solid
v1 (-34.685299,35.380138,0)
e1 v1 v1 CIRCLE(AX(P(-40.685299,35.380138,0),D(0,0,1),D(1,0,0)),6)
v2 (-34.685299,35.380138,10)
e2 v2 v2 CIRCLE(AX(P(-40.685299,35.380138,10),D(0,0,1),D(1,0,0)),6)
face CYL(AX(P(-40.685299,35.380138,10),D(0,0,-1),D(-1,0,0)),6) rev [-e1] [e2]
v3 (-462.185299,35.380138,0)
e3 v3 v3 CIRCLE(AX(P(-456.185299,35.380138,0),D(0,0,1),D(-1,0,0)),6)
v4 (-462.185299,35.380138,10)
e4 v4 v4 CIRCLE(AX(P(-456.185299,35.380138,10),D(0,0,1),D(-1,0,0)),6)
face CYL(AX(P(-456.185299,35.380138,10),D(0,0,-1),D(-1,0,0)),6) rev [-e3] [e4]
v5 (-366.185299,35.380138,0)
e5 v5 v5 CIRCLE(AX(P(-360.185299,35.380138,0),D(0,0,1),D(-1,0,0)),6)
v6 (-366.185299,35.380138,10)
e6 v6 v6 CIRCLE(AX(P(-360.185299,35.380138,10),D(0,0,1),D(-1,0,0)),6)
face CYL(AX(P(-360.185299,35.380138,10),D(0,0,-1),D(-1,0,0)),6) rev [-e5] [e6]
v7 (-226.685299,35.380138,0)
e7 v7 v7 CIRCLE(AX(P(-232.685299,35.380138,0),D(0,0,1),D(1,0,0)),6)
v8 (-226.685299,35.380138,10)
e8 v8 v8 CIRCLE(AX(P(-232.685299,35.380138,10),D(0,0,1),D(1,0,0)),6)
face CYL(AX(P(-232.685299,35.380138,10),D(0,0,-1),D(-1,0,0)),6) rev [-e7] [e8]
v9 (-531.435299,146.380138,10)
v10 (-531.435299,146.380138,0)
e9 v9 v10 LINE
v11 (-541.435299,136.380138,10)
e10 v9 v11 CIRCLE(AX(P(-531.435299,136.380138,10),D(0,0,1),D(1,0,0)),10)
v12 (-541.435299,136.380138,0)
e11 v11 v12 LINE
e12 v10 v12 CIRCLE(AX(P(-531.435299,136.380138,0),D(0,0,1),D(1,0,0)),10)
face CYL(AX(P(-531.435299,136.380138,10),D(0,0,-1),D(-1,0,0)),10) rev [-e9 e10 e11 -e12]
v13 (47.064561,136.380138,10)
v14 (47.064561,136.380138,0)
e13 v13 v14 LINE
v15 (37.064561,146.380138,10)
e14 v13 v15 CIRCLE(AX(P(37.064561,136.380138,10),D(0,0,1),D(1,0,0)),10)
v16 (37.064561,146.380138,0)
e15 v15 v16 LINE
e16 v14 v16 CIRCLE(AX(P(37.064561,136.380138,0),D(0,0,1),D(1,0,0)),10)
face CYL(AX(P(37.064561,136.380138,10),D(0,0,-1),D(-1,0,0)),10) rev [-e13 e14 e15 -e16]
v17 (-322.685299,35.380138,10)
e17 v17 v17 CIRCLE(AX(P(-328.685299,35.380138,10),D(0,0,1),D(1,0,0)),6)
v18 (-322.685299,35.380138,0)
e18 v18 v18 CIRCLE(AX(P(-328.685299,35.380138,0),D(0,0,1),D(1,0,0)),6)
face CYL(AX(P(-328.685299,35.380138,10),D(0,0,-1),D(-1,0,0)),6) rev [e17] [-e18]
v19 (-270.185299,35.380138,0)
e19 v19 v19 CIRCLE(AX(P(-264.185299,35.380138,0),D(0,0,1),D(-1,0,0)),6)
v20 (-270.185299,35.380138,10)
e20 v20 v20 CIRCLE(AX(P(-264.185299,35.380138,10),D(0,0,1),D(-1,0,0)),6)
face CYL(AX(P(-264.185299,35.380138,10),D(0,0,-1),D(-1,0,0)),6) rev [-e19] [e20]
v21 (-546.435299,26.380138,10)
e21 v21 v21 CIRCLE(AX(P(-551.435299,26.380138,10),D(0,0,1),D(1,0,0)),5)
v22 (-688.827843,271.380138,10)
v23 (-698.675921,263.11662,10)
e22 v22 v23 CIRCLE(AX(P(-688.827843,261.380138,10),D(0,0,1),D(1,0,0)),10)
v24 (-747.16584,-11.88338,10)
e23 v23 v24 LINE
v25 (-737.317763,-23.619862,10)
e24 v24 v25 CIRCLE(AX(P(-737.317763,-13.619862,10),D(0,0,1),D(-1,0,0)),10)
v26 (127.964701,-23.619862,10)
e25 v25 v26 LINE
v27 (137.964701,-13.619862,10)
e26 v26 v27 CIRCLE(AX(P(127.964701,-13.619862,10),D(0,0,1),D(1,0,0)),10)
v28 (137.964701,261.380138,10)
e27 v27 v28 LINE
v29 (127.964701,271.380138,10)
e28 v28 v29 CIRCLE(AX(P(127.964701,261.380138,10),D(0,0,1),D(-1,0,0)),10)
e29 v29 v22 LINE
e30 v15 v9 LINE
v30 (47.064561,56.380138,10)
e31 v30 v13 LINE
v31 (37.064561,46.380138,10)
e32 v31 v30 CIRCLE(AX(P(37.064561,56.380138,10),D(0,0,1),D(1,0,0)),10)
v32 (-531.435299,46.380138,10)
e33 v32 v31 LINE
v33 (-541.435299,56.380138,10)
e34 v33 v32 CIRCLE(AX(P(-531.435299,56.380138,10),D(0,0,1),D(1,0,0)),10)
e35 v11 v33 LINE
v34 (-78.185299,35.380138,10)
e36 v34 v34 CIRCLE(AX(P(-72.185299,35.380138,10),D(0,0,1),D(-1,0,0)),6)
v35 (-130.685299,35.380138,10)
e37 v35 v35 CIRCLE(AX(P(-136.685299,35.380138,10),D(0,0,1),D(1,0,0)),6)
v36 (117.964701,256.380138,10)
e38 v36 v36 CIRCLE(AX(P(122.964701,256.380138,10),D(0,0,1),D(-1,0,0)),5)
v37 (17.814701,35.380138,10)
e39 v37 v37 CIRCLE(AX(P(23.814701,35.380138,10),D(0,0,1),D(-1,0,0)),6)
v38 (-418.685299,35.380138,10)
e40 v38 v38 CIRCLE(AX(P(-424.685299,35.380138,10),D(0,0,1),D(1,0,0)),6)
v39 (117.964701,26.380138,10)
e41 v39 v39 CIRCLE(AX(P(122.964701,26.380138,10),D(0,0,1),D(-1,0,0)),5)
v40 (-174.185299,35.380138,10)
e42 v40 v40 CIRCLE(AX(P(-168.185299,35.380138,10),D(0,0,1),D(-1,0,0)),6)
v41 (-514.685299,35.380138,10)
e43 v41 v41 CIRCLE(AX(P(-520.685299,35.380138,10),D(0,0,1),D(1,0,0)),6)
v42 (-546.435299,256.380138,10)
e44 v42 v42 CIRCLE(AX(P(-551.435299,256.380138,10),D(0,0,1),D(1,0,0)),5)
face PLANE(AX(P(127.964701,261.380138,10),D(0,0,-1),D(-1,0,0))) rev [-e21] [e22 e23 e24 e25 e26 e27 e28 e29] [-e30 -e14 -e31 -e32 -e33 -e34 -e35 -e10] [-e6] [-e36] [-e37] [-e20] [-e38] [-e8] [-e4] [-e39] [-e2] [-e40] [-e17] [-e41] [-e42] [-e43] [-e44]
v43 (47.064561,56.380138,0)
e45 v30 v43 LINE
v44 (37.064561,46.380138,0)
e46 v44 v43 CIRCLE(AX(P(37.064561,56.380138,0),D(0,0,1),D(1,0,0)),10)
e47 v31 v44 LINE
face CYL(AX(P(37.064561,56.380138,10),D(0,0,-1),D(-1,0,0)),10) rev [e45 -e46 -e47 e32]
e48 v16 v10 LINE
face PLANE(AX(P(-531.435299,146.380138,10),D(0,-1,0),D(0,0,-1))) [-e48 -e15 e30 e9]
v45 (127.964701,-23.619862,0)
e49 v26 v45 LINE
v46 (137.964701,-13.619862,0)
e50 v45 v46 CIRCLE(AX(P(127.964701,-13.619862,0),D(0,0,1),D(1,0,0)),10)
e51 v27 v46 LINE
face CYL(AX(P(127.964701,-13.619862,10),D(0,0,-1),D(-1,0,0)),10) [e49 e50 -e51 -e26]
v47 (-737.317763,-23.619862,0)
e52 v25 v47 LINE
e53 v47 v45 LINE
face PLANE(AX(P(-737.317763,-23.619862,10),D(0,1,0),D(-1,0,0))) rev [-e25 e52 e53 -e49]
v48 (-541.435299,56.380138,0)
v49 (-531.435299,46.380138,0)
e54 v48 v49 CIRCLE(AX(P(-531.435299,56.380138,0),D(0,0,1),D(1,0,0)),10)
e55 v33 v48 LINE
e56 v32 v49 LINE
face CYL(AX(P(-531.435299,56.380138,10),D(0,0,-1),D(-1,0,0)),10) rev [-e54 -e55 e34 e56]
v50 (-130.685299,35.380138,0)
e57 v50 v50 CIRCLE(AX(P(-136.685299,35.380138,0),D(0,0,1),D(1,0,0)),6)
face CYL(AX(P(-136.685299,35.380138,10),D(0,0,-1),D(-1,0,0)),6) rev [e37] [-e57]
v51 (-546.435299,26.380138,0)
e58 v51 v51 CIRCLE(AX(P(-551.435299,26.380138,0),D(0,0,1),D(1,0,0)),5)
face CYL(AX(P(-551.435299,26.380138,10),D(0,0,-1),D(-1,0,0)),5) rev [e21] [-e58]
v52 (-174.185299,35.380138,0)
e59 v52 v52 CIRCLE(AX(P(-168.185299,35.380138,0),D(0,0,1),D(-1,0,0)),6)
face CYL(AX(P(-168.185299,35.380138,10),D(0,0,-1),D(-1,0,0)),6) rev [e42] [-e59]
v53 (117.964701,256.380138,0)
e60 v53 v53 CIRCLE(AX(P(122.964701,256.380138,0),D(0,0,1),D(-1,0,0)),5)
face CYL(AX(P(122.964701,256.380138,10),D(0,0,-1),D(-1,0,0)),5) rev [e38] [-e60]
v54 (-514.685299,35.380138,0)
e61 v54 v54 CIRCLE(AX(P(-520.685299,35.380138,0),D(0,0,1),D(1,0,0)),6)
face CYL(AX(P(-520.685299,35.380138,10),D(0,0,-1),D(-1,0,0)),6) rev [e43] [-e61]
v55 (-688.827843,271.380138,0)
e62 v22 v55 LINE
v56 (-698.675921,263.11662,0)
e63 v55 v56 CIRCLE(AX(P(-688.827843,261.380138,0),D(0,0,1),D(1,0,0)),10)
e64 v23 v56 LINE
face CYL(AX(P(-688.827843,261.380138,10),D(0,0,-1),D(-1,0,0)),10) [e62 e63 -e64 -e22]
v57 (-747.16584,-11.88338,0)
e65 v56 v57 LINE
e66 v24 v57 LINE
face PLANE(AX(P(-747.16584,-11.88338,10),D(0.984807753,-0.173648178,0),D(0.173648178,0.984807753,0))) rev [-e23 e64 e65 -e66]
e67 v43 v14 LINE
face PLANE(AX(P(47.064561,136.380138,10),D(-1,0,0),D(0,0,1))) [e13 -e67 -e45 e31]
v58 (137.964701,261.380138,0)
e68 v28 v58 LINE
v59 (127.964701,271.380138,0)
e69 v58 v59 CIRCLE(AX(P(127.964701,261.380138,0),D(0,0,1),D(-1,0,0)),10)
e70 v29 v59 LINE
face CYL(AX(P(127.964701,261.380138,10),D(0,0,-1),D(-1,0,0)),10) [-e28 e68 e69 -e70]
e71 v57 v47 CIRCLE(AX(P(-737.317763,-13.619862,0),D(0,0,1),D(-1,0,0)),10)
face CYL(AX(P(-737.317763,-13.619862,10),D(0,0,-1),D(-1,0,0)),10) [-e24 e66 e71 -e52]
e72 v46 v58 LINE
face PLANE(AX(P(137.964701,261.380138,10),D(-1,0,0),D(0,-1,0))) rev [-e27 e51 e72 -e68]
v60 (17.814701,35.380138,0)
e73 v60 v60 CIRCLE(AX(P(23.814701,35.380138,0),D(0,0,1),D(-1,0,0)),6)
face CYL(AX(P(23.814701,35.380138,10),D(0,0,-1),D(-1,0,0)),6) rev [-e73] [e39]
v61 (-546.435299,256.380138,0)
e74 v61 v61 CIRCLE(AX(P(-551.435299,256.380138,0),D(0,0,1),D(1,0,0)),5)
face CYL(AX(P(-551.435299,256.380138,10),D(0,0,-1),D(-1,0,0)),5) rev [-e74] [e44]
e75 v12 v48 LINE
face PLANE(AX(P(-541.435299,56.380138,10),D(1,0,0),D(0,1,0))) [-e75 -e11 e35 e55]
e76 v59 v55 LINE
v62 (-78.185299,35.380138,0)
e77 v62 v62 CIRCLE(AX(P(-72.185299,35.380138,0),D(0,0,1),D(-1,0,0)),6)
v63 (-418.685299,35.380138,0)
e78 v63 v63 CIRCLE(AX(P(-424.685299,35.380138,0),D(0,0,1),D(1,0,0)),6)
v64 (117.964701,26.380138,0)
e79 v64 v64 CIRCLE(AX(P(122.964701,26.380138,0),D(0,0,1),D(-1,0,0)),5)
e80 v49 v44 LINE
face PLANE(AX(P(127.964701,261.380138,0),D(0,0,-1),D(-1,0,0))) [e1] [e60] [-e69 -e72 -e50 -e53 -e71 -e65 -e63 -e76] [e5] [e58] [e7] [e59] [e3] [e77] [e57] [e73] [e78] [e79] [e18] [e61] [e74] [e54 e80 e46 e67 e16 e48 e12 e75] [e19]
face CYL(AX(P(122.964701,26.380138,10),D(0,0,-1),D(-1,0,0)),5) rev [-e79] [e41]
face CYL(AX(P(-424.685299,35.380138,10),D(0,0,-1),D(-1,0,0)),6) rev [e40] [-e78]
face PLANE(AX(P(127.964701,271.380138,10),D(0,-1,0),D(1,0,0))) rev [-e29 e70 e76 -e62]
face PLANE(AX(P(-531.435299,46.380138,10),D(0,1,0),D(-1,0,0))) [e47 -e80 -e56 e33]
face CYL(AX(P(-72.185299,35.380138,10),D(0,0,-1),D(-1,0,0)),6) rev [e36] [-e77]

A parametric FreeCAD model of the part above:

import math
import FreeCAD as App
import Part
import Sketcher

V = App.Vector
Q = App.Units.Quantity

doc = App.newDocument("Part")
body = doc.addObject("PartDesign::Body", "Body")

# Sketch on XY plane
sketch1 = body.newObject("Sketcher::SketchObject", "Sketch")
sketch1.AttachmentSupport = (doc.getObject("XY_Plane"), [""])
sketch1.MapMode = "FlatFace"
sketch1.addGeometry(Part.LineSegment(V(-737.317763, -23.619862, 0), V(127.964701, -23.619862, 0)), False)
sketch1.addGeometry(Part.ArcOfCircle(Part.Circle(V(127.964701, -13.619862, 0), V(0, 0, 1), 10), math.radians(-90), math.radians(0)), False)
sketch1.addGeometry(Part.LineSegment(V(137.964701, -13.619862, 0), V(137.964701, 261.380138, 0)), False)
sketch1.addGeometry(Part.ArcOfCircle(Part.Circle(V(127.964701, 261.380138, 0), V(0, 0, 1), 10), math.radians(0), math.radians(90)), False)
sketch1.addGeometry(Part.LineSegment(V(127.964701, 271.380138, 0), V(-688.827843, 271.380138, 0)), False)
sketch1.addGeometry(Part.ArcOfCircle(Part.Circle(V(-688.827843, 261.380138, 0), V(0, 0, 1), 10), math.radians(90), math.radians(170)), False)
sketch1.addGeometry(Part.LineSegment(V(-698.675921, 263.11662, 0), V(-747.16584, -11.88338, 0)), False)
sketch1.addGeometry(Part.ArcOfCircle(Part.Circle(V(-737.317763, -13.619862, 0), V(0, 0, 1), 10), math.radians(170), math.radians(270)), False)
sketch1.addGeometry(Part.Circle(V(-551.435299, 26.380138, 0), V(0, 0, 1), 5), False)
sketch1.addGeometry(Part.Circle(V(-520.685299, 35.380138, 0), V(0, 0, 1), 6), False)
sketch1.addGeometry(Part.Circle(V(-456.185299, 35.380138, 0), V(0, 0, 1), 6), False)
sketch1.addGeometry(Part.Circle(V(-424.685299, 35.380138, 0), V(0, 0, 1), 6), False)
sketch1.addGeometry(Part.Circle(V(-360.185299, 35.380138, 0), V(0, 0, 1), 6), False)
sketch1.addGeometry(Part.Circle(V(-328.685299, 35.380138, 0), V(0, 0, 1), 6), False)
sketch1.addGeometry(Part.Circle(V(-264.185299, 35.380138, 0), V(0, 0, 1), 6), False)
sketch1.addGeometry(Part.Circle(V(-232.685299, 35.380138, 0), V(0, 0, 1), 6), False)
sketch1.addGeometry(Part.LineSegment(V(37.064561, 46.380138, 0), V(-531.435299, 46.380138, 0)), False)
sketch1.addGeometry(Part.ArcOfCircle(Part.Circle(V(-531.435299, 56.380138, 0), V(0, 0, 1), 10), math.radians(180), math.radians(270)), False)
sketch1.addGeometry(Part.LineSegment(V(-541.435299, 56.380138, 0), V(-541.435299, 136.380138, 0)), False)
sketch1.addGeometry(Part.ArcOfCircle(Part.Circle(V(-531.435299, 136.380138, 0), V(0, 0, 1), 10), math.radians(90), math.radians(180)), False)
sketch1.addGeometry(Part.LineSegment(V(-531.435299, 146.380138, 0), V(37.064561, 146.380138, 0)), False)
sketch1.addGeometry(Part.ArcOfCircle(Part.Circle(V(37.064561, 136.380138, 0), V(0, 0, 1), 10), math.radians(0), math.radians(90)), False)
sketch1.addGeometry(Part.LineSegment(V(47.064561, 136.380138, 0), V(47.064561, 56.380138, 0)), False)
sketch1.addGeometry(Part.ArcOfCircle(Part.Circle(V(37.064561, 56.380138, 0), V(0, 0, 1), 10), math.radians(-90), math.radians(0)), False)
sketch1.addGeometry(Part.Circle(V(-168.185299, 35.380138, 0), V(0, 0, 1), 6), False)
sketch1.addGeometry(Part.Circle(V(-136.685299, 35.380138, 0), V(0, 0, 1), 6), False)
sketch1.addGeometry(Part.Circle(V(-72.185299, 35.380138, 0), V(0, 0, 1), 6), False)
sketch1.addGeometry(Part.Circle(V(-40.685299, 35.380138, 0), V(0, 0, 1), 6), False)
sketch1.addGeometry(Part.Circle(V(23.814701, 35.380138, 0), V(0, 0, 1), 6), False)
sketch1.addGeometry(Part.Circle(V(122.964701, 26.380138, 0), V(0, 0, 1), 5), False)
sketch1.addGeometry(Part.Circle(V(-551.435299, 256.380138, 0), V(0, 0, 1), 5), False)
sketch1.addGeometry(Part.Circle(V(122.964701, 256.380138, 0), V(0, 0, 1), 5), False)
sketch1.addConstraint(Sketcher.Constraint("Tangent", 0, 2, 1, 1))
sketch1.addConstraint(Sketcher.Constraint("Tangent", 1, 2, 2, 1))
sketch1.addConstraint(Sketcher.Constraint("Tangent", 2, 2, 3, 1))
sketch1.addConstraint(Sketcher.Constraint("Tangent", 3, 2, 4, 1))
sketch1.addConstraint(Sketcher.Constraint("Tangent", 4, 2, 5, 1))
sketch1.addConstraint(Sketcher.Constraint("Tangent", 5, 2, 6, 1))
sketch1.addConstraint(Sketcher.Constraint("Tangent", 6, 2, 7, 1))
sketch1.addConstraint(Sketcher.Constraint("Tangent", 7, 2, 0, 1))
sketch1.addConstraint(Sketcher.Constraint("Tangent", 16, 2, 17, 2))
sketch1.addConstraint(Sketcher.Constraint("Tangent", 17, 1, 18, 1))
sketch1.addConstraint(Sketcher.Constraint("Tangent", 18, 2, 19, 2))
sketch1.addConstraint(Sketcher.Constraint("Tangent", 19, 1, 20, 1))
sketch1.addConstraint(Sketcher.Constraint("Tangent", 20, 2, 21, 2))
sketch1.addConstraint(Sketcher.Constraint("Tangent", 21, 1, 22, 1))
sketch1.addConstraint(Sketcher.Constraint("Tangent", 22, 2, 23, 2))
sketch1.addConstraint(Sketcher.Constraint("Tangent", 23, 1, 16, 1))
sketch1.addConstraint(Sketcher.Constraint("Horizontal", 0))
sketch1.addConstraint(Sketcher.Constraint("Vertical", 2))
sketch1.addConstraint(Sketcher.Constraint("Horizontal", 4))
sketch1.addConstraint(Sketcher.Constraint("Horizontal", 16))
sketch1.addConstraint(Sketcher.Constraint("Vertical", 18))
sketch1.addConstraint(Sketcher.Constraint("Horizontal", 20))
sketch1.addConstraint(Sketcher.Constraint("Vertical", 22))
sketch1.addConstraint(Sketcher.Constraint("Equal", 1, 3))
sketch1.addConstraint(Sketcher.Constraint("Equal", 3, 5))
sketch1.addConstraint(Sketcher.Constraint("Equal", 5, 7))
sketch1.addConstraint(Sketcher.Constraint("Equal", 9, 10))
sketch1.addConstraint(Sketcher.Constraint("Equal", 10, 11))
sketch1.addConstraint(Sketcher.Constraint("Equal", 11, 12))
sketch1.addConstraint(Sketcher.Constraint("Equal", 12, 13))
sketch1.addConstraint(Sketcher.Constraint("Equal", 13, 14))
sketch1.addConstraint(Sketcher.Constraint("Equal", 14, 15))
sketch1.addConstraint(Sketcher.Constraint("Equal", 7, 17))
sketch1.addConstraint(Sketcher.Constraint("Equal", 17, 19))
sketch1.addConstraint(Sketcher.Constraint("Equal", 19, 21))
sketch1.addConstraint(Sketcher.Constraint("Equal", 21, 23))
sketch1.addConstraint(Sketcher.Constraint("Equal", 15, 24))
sketch1.addConstraint(Sketcher.Constraint("Equal", 24, 25))
sketch1.addConstraint(Sketcher.Constraint("Equal", 25, 26))
sketch1.addConstraint(Sketcher.Constraint("Equal", 26, 27))
sketch1.addConstraint(Sketcher.Constraint("Equal", 27, 28))
sketch1.addConstraint(Sketcher.Constraint("Equal", 8, 29))
sketch1.addConstraint(Sketcher.Constraint("Equal", 29, 30))
sketch1.addConstraint(Sketcher.Constraint("Equal", 30, 31))
sketch1.addConstraint(Sketcher.Constraint("Horizontal", 9, 3, 10, 3))
sketch1.addConstraint(Sketcher.Constraint("Horizontal", 10, 3, 11, 3))
sketch1.addConstraint(Sketcher.Constraint("Horizontal", 11, 3, 12, 3))
sketch1.addConstraint(Sketcher.Constraint("Horizontal", 12, 3, 13, 3))
sketch1.addConstraint(Sketcher.Constraint("Horizontal", 13, 3, 14, 3))
sketch1.addConstraint(Sketcher.Constraint("Horizontal", 14, 3, 15, 3))
sketch1.addConstraint(Sketcher.Constraint("Horizontal", 15, 3, 24, 3))
sketch1.addConstraint(Sketcher.Constraint("Horizontal", 24, 3, 25, 3))
sketch1.addConstraint(Sketcher.Constraint("Horizontal", 25, 3, 26, 3))
sketch1.addConstraint(Sketcher.Constraint("Horizontal", 26, 3, 27, 3))
sketch1.addConstraint(Sketcher.Constraint("Horizontal", 27, 3, 28, 3))
sketch1.addConstraint(Sketcher.Constraint("Horizontal", 8, 3, 29, 3))
sketch1.addConstraint(Sketcher.Constraint("Horizontal", 30, 3, 31, 3))
sketch1.addConstraint(Sketcher.Constraint("Vertical", 8, 3, 30, 3))
sketch1.addConstraint(Sketcher.Constraint("Vertical", 29, 3, 31, 3))
sketch1.addConstraint(Sketcher.Constraint("Diameter", 8, 10.0))
sketch1.addConstraint(Sketcher.Constraint("Diameter", 9, 12.0))
sketch1.addConstraint(Sketcher.Constraint("Radius", 1, 10.0))
sketch1.addConstraint(Sketcher.Constraint("DistanceY", 2, 1, 2, 2, 275.0))
sketch1.addConstraint(Sketcher.Constraint("DistanceY", 18, 1, 18, 2, 80.0))
sketch1.addConstraint(Sketcher.Constraint("Angle", 6, Q("-100 deg")))
sketch1.addConstraint(Sketcher.Constraint("DistanceY", 7, 3, 8, 3, 40.0))
sketch1.addConstraint(Sketcher.Constraint("DistanceY", 8, 3, 9, 3, 9.0))
sketch1.addConstraint(Sketcher.Constraint("DistanceX", 9, 3, 11, 3, 96.0))
sketch1.addConstraint(Sketcher.Constraint("DistanceX", 10, 3, 12, 3, 96.0))
sketch1.addConstraint(Sketcher.Constraint("DistanceX", 11, 3, 13, 3, 96.0))
sketch1.addConstraint(Sketcher.Constraint("DistanceX", 12, 3, 14, 3, 96.0))
sketch1.addConstraint(Sketcher.Constraint("DistanceX", 13, 3, 15, 3, 96.0))
sketch1.addConstraint(Sketcher.Constraint("DistanceY", 9, 3, 17, 3, 21.0))
sketch1.addConstraint(Sketcher.Constraint("DistanceX", 8, 3, 17, 3, 20.0))
sketch1.addConstraint(Sketcher.Constraint("DistanceX", 14, 3, 24, 3, 96.0))
sketch1.addConstraint(Sketcher.Constraint("DistanceX", 15, 3, 25, 3, 96.0))
sketch1.addConstraint(Sketcher.Constraint("DistanceX", 24, 3, 26, 3, 96.0))
sketch1.addConstraint(Sketcher.Constraint("DistanceX", 25, 3, 27, 3, 96.0))
sketch1.addConstraint(Sketcher.Constraint("DistanceX", 26, 3, 28, 3, 96.0))
sketch1.addConstraint(Sketcher.Constraint("DistanceX", 29, 3, 1, 3, 5.0))
sketch1.addConstraint(Sketcher.Constraint("DistanceY", 19, 3, 30, 3, 120.0))
sketch1.addConstraint(Sketcher.Constraint("DistanceX", 8, 3, 1, 3, 679.4))
sketch1.addConstraint(Sketcher.Constraint("DistanceX", 9, 3, 10, 3, 64.5))
sketch1.addConstraint(Sketcher.Constraint("DistanceX", 8, 3, 9, 3, 30.75))
sketch1.addConstraint(Sketcher.Constraint("DistanceX", 16, 2, 16, 1, 568.49986))
sketch1.addConstraint(Sketcher.Constraint("DistanceX", -1, 1, 1, 3, 127.964701))
sketch1.addConstraint(Sketcher.Constraint("DistanceX", 0, 1, 0, 2, 865.282464))
sketch1.addConstraint(Sketcher.Constraint("DistanceY", 1, 3, -1, 1, 13.619862))
pad1 = body.newObject("PartDesign::Pad", "Pad")
pad1.Profile = sketch1
pad1.Length = 10

doc.recompute()
